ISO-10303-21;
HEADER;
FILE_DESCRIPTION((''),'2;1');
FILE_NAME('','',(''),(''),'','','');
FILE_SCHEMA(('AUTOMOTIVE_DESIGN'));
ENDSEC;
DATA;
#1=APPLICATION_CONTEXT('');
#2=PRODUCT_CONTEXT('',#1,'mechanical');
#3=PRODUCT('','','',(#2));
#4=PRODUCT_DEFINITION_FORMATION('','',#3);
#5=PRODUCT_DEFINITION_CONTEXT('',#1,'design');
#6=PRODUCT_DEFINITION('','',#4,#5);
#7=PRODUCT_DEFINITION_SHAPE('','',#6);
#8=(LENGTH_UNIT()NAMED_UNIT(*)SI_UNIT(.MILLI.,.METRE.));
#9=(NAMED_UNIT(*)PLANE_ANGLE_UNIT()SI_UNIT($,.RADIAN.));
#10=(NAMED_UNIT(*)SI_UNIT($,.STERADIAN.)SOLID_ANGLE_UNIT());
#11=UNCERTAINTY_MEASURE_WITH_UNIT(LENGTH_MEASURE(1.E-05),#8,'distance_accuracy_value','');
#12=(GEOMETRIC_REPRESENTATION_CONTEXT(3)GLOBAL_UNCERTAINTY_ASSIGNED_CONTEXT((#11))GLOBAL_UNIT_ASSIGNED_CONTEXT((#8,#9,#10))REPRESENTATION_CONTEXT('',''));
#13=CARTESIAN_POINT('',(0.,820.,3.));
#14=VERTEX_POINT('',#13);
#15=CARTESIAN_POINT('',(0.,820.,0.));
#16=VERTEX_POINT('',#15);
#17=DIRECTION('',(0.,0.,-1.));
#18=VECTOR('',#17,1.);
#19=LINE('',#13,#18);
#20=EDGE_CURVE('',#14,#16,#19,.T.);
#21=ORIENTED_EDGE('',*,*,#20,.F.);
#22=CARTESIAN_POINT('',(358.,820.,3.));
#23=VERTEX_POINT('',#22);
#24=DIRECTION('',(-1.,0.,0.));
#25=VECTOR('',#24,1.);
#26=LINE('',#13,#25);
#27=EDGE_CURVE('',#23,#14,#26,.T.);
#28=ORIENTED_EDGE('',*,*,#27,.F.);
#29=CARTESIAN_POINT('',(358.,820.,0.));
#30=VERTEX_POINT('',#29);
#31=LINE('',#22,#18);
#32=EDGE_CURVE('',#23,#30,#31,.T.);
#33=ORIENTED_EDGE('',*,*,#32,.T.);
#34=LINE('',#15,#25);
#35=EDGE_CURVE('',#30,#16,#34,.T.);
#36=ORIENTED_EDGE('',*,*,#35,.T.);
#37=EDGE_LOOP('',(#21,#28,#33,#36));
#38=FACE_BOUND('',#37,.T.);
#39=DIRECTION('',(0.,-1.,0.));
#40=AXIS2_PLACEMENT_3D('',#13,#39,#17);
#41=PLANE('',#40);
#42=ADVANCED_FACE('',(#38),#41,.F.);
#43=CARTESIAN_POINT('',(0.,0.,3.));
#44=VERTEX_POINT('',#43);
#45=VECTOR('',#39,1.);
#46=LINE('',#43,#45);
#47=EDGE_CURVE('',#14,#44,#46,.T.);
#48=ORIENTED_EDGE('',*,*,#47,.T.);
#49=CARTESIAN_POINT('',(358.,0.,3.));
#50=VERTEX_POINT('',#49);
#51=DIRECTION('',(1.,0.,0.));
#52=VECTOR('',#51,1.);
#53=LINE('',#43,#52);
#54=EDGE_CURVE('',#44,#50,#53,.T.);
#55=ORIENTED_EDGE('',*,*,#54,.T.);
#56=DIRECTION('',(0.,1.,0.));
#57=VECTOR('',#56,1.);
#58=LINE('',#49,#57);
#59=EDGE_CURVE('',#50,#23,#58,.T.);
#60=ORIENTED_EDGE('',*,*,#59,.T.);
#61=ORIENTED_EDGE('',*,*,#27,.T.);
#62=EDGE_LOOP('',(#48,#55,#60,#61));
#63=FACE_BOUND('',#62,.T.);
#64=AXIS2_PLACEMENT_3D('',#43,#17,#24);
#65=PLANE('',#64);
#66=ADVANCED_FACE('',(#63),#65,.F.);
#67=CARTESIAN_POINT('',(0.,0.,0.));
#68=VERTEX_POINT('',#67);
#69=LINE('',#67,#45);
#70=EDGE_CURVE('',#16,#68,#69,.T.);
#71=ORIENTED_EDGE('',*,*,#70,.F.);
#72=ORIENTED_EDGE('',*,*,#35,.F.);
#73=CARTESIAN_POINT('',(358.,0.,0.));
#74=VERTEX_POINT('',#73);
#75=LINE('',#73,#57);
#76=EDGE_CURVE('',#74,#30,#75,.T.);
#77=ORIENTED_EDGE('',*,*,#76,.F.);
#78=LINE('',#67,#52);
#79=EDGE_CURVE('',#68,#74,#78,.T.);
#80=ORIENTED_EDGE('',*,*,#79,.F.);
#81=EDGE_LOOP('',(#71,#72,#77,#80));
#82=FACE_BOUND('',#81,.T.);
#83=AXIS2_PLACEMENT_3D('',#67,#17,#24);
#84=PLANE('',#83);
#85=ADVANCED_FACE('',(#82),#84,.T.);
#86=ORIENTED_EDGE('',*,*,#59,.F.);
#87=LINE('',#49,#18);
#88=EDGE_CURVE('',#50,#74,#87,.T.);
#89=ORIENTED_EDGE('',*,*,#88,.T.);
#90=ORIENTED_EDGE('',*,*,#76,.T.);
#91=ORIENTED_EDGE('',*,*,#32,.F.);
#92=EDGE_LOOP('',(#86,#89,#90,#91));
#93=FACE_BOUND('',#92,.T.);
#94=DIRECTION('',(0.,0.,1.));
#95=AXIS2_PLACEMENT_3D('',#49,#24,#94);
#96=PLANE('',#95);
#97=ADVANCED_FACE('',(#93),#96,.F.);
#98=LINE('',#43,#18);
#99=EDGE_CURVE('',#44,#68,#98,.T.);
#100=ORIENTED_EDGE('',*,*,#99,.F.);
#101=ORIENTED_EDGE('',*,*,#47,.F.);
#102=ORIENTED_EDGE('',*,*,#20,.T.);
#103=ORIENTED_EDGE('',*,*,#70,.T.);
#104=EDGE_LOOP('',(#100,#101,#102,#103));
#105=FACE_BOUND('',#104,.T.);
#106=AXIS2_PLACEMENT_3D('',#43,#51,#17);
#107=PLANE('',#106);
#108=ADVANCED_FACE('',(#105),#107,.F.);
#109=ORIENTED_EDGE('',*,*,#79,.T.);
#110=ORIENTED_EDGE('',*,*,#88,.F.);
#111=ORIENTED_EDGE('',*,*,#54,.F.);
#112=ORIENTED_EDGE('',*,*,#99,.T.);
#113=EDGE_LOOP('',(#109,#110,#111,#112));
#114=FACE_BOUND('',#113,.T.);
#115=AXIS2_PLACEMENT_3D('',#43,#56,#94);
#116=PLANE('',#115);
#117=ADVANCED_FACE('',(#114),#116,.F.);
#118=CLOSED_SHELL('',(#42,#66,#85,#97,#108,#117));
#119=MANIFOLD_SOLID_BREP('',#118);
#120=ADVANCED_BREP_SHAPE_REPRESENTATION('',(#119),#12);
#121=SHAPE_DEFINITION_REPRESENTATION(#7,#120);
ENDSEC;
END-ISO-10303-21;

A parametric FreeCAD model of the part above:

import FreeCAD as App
import Part
import Sketcher
Q = App.Units.Quantity


def add_polygon(sketch, points):
    """Adds a closed chain of lines whose ends are joined by coincident constraints."""
    first, n = sketch.GeometryCount, len(points)
    for a, b in zip(points, points[1:] + points[:1]):
        sketch.addGeometry(Part.LineSegment(App.Vector(*a, 0), App.Vector(*b, 0)), False)
    for i in range(n):
        sketch.addConstraint(Sketcher.Constraint("Coincident", first + i, 2, first + (i + 1) % n, 1))

doc = App.newDocument("Part")
body = doc.addObject("PartDesign::Body", "Body")

# Sketch on XY plane
sketch1 = body.newObject("Sketcher::SketchObject", "Sketch")
sketch1.AttachmentSupport = (doc.getObject("XY_Plane"), [""])
sketch1.MapMode = "FlatFace"
add_polygon(sketch1, [(0, 820), (0, 0), (358, 0), (358, 820)])  # lines 0-3
sketch1.addConstraint([
    Sketcher.Constraint("Vertical", 0),
    Sketcher.Constraint("Horizontal", 1),
    Sketcher.Constraint("Vertical", 2),
    Sketcher.Constraint("Horizontal", 3),
    Sketcher.Constraint("Coincident", 0, 2, -1, 1),
    Sketcher.Constraint("DistanceX", 1, 1, 1, 2, Q("358 mm")),
    Sketcher.Constraint("DistanceY", 0, 2, 0, 1, Q("820 mm")),
])
pad1 = body.newObject("PartDesign::Pad", "Pad")
pad1.Profile = sketch1
pad1.Length = 3

doc.recompute()
